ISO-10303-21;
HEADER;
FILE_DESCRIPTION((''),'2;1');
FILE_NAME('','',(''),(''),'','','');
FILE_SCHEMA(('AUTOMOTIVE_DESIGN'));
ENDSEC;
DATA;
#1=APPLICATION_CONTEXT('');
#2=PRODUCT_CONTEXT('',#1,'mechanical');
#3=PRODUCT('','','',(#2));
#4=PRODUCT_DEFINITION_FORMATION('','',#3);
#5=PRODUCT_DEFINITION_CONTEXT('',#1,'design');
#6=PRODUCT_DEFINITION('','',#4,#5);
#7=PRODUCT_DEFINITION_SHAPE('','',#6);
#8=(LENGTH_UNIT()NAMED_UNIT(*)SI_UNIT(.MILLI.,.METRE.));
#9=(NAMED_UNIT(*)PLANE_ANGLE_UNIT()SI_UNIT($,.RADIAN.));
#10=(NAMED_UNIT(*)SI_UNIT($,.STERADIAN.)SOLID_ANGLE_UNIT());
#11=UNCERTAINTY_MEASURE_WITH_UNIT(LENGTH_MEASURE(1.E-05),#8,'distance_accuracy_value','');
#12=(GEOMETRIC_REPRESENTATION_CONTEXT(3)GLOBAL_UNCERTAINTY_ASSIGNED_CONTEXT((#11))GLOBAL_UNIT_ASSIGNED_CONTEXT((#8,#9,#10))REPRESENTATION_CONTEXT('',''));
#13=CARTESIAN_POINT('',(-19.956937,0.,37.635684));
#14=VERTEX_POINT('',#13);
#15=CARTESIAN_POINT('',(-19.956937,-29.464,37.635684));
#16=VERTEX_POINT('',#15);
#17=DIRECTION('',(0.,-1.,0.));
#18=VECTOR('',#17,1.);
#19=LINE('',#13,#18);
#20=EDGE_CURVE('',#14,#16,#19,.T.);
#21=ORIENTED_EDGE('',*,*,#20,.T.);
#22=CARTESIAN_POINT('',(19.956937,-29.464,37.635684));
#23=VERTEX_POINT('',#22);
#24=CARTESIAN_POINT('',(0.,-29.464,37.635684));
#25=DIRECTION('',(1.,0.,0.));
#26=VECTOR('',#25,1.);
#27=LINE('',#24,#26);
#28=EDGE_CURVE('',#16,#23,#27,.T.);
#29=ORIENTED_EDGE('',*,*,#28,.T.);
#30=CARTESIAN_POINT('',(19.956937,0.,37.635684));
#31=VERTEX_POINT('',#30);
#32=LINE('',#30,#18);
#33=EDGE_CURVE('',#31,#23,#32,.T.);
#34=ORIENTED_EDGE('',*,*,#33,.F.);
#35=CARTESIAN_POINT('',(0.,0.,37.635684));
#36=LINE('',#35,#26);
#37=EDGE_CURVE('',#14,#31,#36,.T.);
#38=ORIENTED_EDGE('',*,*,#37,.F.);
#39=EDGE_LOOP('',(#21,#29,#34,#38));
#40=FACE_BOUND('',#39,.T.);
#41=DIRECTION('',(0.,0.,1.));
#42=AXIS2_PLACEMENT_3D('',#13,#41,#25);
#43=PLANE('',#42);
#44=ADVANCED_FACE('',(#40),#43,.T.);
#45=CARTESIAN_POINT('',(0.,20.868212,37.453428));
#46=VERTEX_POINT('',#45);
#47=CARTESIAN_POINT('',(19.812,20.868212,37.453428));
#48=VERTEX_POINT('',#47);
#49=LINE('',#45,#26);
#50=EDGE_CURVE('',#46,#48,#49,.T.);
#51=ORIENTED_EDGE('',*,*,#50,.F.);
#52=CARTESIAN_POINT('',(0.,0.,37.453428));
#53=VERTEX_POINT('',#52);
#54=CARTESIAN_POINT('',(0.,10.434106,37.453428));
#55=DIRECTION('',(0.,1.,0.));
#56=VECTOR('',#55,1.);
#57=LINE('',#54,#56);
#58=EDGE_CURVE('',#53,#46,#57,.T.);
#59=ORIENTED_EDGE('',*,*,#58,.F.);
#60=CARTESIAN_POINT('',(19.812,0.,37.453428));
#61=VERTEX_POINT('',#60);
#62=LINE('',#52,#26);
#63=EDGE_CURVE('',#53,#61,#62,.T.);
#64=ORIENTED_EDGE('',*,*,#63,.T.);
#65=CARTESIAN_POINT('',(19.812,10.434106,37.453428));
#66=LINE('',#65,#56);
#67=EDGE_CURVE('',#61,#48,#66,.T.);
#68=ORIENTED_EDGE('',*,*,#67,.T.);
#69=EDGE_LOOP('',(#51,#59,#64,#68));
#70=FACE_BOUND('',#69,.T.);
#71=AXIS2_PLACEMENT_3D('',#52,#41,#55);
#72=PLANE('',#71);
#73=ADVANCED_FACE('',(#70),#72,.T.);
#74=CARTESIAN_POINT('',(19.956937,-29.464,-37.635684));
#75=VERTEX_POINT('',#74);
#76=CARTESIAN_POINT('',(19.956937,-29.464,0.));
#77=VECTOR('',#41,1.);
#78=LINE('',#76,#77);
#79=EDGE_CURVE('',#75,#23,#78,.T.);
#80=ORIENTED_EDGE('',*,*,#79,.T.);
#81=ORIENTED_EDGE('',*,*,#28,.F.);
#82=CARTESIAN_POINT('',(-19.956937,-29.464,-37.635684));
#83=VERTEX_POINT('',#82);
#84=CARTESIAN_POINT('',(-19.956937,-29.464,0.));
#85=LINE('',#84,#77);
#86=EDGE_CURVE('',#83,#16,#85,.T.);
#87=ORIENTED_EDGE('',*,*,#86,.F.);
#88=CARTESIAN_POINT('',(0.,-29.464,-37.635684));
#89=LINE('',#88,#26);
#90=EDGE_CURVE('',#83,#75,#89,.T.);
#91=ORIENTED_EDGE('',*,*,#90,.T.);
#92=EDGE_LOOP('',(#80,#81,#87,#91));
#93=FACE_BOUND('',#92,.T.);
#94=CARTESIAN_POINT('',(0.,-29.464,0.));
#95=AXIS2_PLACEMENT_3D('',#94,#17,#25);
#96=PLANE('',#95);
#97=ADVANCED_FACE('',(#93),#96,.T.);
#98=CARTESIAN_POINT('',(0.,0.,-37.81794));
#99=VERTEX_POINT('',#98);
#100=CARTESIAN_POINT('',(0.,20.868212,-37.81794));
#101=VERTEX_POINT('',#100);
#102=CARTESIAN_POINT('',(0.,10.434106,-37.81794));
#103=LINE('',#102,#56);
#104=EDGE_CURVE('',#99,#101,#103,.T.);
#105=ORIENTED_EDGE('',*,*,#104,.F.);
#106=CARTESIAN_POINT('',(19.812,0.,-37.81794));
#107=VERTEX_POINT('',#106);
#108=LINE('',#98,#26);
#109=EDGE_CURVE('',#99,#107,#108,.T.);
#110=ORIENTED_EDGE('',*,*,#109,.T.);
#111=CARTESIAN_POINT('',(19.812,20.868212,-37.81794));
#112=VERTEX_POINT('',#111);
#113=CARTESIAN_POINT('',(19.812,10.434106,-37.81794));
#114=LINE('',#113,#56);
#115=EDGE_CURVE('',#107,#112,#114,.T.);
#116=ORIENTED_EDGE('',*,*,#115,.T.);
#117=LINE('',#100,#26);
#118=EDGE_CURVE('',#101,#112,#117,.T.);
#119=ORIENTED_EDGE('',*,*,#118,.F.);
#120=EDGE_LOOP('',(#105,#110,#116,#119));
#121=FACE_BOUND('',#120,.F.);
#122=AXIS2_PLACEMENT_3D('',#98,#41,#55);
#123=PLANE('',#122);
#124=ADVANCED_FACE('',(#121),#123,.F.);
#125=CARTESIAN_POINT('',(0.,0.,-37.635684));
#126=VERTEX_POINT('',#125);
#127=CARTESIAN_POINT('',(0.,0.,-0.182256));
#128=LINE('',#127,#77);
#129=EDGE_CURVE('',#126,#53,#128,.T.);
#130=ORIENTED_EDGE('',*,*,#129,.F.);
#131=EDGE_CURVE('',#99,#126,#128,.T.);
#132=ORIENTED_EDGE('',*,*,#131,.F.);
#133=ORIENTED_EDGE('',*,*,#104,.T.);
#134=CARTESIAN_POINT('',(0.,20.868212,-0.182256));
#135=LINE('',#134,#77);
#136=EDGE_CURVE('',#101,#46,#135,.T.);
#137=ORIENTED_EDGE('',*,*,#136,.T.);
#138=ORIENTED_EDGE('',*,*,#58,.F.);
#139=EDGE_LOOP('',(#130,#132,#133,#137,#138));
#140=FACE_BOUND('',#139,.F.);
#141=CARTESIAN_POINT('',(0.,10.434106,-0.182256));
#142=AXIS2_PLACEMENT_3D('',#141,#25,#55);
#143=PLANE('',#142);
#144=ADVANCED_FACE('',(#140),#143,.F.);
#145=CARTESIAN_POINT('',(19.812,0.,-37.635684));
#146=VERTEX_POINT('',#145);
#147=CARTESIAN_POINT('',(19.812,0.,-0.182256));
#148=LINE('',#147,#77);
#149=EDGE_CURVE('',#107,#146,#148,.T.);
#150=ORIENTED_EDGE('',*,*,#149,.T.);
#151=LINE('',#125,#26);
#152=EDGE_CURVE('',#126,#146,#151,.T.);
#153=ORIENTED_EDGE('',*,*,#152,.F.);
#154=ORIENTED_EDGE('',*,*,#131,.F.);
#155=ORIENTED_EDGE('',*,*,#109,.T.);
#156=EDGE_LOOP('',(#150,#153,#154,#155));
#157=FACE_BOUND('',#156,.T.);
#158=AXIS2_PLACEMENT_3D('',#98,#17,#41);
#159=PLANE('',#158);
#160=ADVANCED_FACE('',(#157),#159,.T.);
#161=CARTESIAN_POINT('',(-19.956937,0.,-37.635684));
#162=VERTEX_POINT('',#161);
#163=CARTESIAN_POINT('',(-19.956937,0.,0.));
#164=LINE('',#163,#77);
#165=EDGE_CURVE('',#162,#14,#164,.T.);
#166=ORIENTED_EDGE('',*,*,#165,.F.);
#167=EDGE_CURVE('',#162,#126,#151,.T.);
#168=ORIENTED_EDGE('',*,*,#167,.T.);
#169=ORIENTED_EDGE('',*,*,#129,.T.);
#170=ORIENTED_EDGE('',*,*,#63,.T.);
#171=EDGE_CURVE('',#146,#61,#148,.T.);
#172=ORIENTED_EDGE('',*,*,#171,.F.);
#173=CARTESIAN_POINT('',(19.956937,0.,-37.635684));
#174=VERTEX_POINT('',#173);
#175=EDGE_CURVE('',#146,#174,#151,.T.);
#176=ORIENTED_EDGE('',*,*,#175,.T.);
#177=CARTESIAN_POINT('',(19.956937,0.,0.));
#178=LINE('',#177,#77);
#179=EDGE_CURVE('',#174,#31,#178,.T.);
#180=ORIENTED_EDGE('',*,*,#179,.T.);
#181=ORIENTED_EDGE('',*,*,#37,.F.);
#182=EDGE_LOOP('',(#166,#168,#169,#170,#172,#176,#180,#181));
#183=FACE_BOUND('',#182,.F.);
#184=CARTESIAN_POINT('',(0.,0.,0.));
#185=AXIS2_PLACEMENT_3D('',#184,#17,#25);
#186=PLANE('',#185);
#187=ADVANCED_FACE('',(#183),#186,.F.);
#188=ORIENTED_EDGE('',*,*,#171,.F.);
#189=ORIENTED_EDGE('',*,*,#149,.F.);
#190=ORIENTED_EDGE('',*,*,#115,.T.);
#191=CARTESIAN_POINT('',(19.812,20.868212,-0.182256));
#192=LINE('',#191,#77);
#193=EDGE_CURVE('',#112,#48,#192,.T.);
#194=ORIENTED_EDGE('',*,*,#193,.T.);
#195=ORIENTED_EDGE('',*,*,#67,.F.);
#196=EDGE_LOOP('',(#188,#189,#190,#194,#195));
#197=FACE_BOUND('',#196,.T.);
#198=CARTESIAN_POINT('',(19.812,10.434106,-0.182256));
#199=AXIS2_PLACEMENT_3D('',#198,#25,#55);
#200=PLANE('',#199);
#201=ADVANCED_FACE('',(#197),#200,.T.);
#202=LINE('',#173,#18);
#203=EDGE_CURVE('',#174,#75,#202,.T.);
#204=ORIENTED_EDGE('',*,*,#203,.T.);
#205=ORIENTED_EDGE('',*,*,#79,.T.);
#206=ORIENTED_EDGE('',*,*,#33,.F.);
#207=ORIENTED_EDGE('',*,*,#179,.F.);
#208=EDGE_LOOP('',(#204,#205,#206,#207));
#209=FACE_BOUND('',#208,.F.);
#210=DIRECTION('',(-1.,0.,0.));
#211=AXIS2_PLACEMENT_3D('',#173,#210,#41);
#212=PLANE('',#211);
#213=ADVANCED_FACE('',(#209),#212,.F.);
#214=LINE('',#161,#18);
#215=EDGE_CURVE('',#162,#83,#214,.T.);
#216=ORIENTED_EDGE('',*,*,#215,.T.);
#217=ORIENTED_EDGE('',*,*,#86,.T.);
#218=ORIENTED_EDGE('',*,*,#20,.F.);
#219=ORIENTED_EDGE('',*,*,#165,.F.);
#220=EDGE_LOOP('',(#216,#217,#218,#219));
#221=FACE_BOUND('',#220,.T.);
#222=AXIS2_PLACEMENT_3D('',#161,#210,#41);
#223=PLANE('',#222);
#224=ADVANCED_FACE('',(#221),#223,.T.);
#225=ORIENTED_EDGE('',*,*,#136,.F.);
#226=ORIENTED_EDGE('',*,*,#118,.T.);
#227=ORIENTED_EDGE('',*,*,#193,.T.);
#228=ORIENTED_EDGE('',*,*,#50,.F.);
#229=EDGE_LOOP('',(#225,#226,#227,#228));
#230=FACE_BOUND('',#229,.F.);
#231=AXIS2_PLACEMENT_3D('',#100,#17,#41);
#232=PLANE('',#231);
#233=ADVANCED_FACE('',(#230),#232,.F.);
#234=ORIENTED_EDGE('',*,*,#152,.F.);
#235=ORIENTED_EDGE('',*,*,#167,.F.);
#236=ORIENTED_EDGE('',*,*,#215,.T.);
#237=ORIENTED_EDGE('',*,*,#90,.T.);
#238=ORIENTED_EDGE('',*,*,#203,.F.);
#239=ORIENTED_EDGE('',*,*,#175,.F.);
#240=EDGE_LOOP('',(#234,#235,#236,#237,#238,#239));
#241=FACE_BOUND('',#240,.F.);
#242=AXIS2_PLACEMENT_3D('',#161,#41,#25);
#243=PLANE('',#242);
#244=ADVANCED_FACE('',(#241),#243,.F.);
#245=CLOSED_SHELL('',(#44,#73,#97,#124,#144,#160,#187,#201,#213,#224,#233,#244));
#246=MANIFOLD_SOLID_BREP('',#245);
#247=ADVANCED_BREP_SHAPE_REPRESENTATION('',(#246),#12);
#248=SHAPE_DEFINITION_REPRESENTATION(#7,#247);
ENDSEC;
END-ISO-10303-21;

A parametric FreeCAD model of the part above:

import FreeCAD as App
import Part
import Sketcher
from FreeCAD import Vector
Q = App.Units.Quantity


def add_polygon(sketch, points):
    """Adds a closed chain of lines whose ends are joined by coincident constraints."""
    first, n = sketch.GeometryCount, len(points)
    for a, b in zip(points, points[1:] + points[:1]):
        sketch.addGeometry(Part.LineSegment(App.Vector(*a, 0), App.Vector(*b, 0)), False)
    for i in range(n):
        sketch.addConstraint(Sketcher.Constraint("Coincident", first + i, 2, first + (i + 1) % n, 1))

doc = App.newDocument("Part")
body = doc.addObject("PartDesign::Body", "Body")

# Sketch on XZ plane
sketch1 = body.newObject("Sketcher::SketchObject", "Sketch")
sketch1.AttachmentSupport = (doc.getObject("XZ_Plane"), [""])
sketch1.MapMode = "FlatFace"
add_polygon(sketch1, [(-19.956937, 37.635684), (-19.956937, -37.635684), (19.956937, -37.635684), (19.956937, 37.635684)])  # lines 0-3
sketch1.addConstraint([
    Sketcher.Constraint("Vertical", 0),
    Sketcher.Constraint("Horizontal", 1),
    Sketcher.Constraint("Vertical", 2),
    Sketcher.Constraint("Horizontal", 3),
    Sketcher.Constraint("Symmetric", 0, 2, 2, 2, -1, 1),
    Sketcher.Constraint("DistanceX", 1, 1, 1, 2, 39.913874),
    Sketcher.Constraint("DistanceY", 0, 2, 0, 1, 75.271368),
])
pad1 = body.newObject("PartDesign::Pad", "Pad")
pad1.Profile = sketch1
pad1.Length = Q("1.16 in")

# Sketch on YZ plane
sketch2 = body.newObject("Sketcher::SketchObject", "Sketch001")
sketch2.AttachmentSupport = (doc.getObject("YZ_Plane"), [""])
sketch2.MapMode = "FlatFace"
add_polygon(sketch2, [(0, 37.453428), (0, -37.81794), (20.868212, -37.81794), (20.868212, 37.453428)])  # lines 0-3
sketch2.addConstraint([
    Sketcher.Constraint("Vertical", 0),
    Sketcher.Constraint("Horizontal", 1),
    Sketcher.Constraint("Vertical", 2),
    Sketcher.Constraint("Horizontal", 3),
    Sketcher.Constraint("PointOnObject", 0, 2, -2),
    Sketcher.Constraint("DistanceX", 1, 1, 1, 2, 20.868212),
    Sketcher.Constraint("DistanceY", 0, 2, 0, 1, 75.271368),
    Sketcher.Constraint("DistanceY", 0, 2, -1, 1, 37.81794),
])
pad2 = body.newObject("PartDesign::Pad", "Pad001")
pad2.Profile = sketch2
pad2.Length = Q("0.78 in")

doc.recompute()
